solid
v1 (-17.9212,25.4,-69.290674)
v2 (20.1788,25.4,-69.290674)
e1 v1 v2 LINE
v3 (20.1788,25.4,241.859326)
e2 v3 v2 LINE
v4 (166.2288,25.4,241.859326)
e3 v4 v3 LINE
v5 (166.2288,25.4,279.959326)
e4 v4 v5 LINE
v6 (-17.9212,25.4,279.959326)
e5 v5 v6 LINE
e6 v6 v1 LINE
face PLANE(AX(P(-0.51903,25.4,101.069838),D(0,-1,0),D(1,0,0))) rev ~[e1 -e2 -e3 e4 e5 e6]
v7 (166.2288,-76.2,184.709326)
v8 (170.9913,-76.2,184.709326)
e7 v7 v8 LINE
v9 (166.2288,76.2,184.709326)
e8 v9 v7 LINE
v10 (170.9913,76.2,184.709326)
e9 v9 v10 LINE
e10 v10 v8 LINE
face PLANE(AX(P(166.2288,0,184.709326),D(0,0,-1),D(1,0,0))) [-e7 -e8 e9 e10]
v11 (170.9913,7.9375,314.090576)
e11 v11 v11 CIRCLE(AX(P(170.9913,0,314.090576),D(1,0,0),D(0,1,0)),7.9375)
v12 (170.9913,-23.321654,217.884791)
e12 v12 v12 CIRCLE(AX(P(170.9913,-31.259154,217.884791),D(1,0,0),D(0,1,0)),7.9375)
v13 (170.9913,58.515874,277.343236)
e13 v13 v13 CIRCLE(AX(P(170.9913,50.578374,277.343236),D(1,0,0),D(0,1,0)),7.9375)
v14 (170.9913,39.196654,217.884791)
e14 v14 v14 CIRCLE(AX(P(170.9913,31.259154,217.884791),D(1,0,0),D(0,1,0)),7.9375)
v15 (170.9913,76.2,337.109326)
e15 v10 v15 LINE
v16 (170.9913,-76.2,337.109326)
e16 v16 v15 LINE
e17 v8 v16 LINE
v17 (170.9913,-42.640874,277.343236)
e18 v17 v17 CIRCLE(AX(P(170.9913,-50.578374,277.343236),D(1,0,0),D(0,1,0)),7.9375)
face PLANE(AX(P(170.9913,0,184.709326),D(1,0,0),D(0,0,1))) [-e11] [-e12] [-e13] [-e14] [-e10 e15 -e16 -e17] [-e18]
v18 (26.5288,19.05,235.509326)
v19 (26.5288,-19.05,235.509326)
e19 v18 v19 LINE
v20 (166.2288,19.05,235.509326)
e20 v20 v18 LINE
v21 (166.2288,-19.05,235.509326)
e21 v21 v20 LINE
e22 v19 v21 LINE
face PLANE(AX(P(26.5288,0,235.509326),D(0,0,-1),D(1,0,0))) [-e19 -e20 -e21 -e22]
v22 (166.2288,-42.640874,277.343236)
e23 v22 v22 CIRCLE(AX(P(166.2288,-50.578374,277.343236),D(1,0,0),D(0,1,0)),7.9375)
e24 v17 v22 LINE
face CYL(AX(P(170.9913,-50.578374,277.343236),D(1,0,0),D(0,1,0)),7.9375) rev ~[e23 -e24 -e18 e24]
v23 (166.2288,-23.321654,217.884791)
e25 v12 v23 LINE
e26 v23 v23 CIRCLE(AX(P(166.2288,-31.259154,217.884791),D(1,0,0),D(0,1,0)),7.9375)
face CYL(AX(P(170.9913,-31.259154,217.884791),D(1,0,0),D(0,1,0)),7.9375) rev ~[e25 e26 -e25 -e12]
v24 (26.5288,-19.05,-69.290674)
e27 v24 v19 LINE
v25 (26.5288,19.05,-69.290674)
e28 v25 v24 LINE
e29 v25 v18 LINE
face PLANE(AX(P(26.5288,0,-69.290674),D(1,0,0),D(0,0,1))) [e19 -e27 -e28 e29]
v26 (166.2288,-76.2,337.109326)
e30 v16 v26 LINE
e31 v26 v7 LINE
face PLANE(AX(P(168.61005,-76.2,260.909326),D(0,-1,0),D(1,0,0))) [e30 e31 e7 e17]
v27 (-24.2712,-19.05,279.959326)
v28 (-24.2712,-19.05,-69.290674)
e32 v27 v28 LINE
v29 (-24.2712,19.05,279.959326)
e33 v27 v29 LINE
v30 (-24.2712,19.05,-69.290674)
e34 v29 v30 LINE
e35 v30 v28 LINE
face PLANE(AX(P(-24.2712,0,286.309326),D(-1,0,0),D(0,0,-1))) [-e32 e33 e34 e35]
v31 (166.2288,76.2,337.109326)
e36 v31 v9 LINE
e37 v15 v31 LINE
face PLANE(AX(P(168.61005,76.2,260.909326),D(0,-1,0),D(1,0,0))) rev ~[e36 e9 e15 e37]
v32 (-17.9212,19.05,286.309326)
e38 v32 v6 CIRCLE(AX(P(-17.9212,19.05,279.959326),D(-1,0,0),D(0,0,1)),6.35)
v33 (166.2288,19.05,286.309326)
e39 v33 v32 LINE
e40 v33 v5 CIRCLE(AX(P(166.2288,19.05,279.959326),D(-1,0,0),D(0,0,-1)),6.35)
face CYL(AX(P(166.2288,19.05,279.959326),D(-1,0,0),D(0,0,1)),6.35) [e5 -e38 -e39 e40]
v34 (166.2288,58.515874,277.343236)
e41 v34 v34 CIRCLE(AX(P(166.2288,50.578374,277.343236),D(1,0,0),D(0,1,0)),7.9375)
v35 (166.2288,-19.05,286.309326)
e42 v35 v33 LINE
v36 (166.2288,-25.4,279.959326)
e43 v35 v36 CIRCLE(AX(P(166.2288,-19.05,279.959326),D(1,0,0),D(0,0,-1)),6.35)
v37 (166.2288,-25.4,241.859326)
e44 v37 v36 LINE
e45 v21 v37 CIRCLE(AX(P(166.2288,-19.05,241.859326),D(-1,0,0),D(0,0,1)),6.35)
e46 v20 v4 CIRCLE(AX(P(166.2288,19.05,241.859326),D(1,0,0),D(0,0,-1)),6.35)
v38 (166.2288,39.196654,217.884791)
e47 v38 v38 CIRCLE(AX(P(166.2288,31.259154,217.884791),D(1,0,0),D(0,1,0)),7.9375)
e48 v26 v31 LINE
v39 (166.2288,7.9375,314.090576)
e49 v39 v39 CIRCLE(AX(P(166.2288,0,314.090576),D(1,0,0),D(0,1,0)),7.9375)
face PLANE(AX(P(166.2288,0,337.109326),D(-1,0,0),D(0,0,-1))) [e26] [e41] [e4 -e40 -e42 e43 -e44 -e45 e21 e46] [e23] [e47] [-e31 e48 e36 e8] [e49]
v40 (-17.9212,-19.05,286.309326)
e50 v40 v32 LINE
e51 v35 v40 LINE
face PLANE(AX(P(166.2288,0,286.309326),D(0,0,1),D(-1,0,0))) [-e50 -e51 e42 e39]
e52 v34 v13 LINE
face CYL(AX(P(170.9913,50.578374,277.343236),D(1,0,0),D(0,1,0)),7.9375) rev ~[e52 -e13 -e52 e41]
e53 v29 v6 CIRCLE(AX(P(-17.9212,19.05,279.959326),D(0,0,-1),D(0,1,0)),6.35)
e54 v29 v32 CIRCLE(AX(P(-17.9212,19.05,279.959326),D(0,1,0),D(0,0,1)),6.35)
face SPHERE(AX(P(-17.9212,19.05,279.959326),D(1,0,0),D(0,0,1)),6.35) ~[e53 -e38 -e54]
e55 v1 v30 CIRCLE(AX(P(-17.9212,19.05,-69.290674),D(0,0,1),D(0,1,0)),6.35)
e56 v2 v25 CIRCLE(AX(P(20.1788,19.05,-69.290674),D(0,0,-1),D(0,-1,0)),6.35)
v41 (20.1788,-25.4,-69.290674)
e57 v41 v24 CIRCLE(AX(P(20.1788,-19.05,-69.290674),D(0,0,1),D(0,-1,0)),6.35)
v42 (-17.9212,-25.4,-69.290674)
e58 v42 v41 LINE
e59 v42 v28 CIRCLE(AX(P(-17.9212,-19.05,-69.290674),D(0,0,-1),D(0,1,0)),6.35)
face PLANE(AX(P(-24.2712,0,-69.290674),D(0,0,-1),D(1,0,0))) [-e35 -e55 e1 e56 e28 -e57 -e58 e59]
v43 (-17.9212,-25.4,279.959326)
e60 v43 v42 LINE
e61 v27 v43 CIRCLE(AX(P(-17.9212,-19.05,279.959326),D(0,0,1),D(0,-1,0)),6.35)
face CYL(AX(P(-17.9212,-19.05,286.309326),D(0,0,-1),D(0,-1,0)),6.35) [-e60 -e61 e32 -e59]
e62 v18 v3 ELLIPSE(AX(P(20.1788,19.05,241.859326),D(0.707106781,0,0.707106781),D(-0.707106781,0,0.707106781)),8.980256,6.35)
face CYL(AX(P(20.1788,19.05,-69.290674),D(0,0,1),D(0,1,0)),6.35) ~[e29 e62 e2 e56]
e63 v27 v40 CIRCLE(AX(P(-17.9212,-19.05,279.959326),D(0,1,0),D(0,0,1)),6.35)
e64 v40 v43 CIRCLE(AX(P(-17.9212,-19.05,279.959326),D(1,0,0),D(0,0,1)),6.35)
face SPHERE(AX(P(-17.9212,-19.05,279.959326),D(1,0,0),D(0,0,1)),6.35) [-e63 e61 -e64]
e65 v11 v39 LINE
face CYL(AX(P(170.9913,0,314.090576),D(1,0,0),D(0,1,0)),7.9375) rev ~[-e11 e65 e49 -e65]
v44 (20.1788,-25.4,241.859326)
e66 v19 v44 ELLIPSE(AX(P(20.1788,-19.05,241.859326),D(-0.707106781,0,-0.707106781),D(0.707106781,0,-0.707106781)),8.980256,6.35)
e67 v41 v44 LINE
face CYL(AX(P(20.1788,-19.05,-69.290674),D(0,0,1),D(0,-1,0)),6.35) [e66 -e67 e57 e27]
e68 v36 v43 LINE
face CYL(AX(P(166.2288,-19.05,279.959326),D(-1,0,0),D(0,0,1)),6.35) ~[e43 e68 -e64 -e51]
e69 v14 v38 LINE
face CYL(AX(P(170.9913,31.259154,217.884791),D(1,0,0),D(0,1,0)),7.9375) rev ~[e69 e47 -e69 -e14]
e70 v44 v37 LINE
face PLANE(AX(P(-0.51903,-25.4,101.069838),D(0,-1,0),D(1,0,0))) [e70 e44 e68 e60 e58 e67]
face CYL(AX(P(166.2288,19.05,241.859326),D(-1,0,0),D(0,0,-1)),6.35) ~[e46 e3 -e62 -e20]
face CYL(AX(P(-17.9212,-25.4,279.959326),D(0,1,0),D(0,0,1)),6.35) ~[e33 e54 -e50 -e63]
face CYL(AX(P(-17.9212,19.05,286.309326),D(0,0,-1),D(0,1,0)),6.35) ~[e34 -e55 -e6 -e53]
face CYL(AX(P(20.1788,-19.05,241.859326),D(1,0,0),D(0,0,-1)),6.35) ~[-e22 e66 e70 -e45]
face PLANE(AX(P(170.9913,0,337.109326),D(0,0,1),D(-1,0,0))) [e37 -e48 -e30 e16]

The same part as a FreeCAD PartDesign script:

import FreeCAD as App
import Part
import Sketcher
from FreeCAD import Vector
Q = App.Units.Quantity


def edges_at(feature, points):
    """Names of the edges that pass closest to the given points."""
    edges = feature.Shape.Edges
    near = lambda p: min(range(len(edges)), key=lambda i: edges[i].distToShape(Part.Vertex(*p))[0])
    return sorted({f"Edge{near(p) + 1}" for p in points})


def add_polygon(sketch, points):
    """Adds a closed chain of lines whose ends are joined by coincident constraints."""
    first, n = sketch.GeometryCount, len(points)
    for a, b in zip(points, points[1:] + points[:1]):
        sketch.addGeometry(Part.LineSegment(App.Vector(*a, 0), App.Vector(*b, 0)), False)
    for i in range(n):
        sketch.addConstraint(Sketcher.Constraint("Coincident", first + i, 2, first + (i + 1) % n, 1))

doc = App.newDocument("Part")
params = doc.addObject("Spreadsheet::Sheet", "Params")
for row, (alias, value) in enumerate([
    ("sketch1_width", "2 in"),
    ("sketch1_height", "14 in"),
    ("sketch1_width2", "5.5 in"),
    ("pad1_length", "2 in"),
    ("sketch2_height", "6 in"),
    ("sketch2_width", "0.1875 in"),
    ("pad2_length", "6 in"),
    ("sketch3_diameter", "0.625 in"),
    ("pocket1_length", "1 in"),
    ("fillet_radius", "0.25 in"),
    ("fillet2_radius", "0.25 in"),
], start=1):
    params.set(f"A{row}", alias)
    params.set(f"B{row}", "=" + value)
    params.setAlias(f"B{row}", alias)

body = doc.addObject("PartDesign::Body", "Body")

# Sketch on XZ plane
sketch1 = doc.addObject("Sketcher::SketchObject", "Sketch")
body.addObject(sketch1)
sketch1.AttachmentSupport = (doc.XZ_Plane, [""])
sketch1.MapMode = "FlatFace"
add_polygon(sketch1, [(-24.2712, 286.309326), (-24.2712, -69.290674), (26.5288, -69.290674), (26.5288, 235.509326), (166.2288, 235.509326), (166.2288, 286.309326)])  # lines 0-5
sketch1.addConstraint([
    Sketcher.Constraint("Vertical", 0),
    Sketcher.Constraint("Horizontal", 1),
    Sketcher.Constraint("Vertical", 2),
    Sketcher.Constraint("Horizontal", 3),
    Sketcher.Constraint("Vertical", 4),
    Sketcher.Constraint("Horizontal", 5),
    Sketcher.Constraint("Equal", 1, 4),
    Sketcher.Constraint("DistanceX", 1, 1, 1, 2, Q("2 in")),
    Sketcher.Constraint("DistanceY", 0, 2, 0, 1, Q("14 in")),
    Sketcher.Constraint("DistanceX", 3, 1, 3, 2, Q("5.5 in")),
    Sketcher.Constraint("DistanceX", 0, 2, -1, 1, Q("24.2712 mm")),
    Sketcher.Constraint("DistanceY", 0, 2, -1, 1, Q("69.290674 mm")),
])
sketch1.setExpression("Constraints[13]", "Params.sketch1_width")
sketch1.setExpression("Constraints[14]", "Params.sketch1_height")
sketch1.setExpression("Constraints[15]", "Params.sketch1_width2")
pad1 = doc.addObject("PartDesign::Pad", "Pad")
body.addObject(pad1)
pad1.Profile = sketch1
pad1.setExpression("Length", "Params.pad1_length")
pad1.Midplane = True

# Sketch on XZ plane
sketch2 = doc.addObject("Sketcher::SketchObject", "Sketch001")
body.addObject(sketch2)
sketch2.AttachmentSupport = (doc.XZ_Plane, [""])
sketch2.MapMode = "FlatFace"
add_polygon(sketch2, [(166.2288, 337.109326), (166.2288, 184.709326), (170.9913, 184.709326), (170.9913, 337.109326)])  # lines 0-3
sketch2.addConstraint([
    Sketcher.Constraint("Vertical", 0),
    Sketcher.Constraint("Horizontal", 1),
    Sketcher.Constraint("Vertical", 2),
    Sketcher.Constraint("Horizontal", 3),
    Sketcher.Constraint("DistanceY", 0, 2, 0, 1, Q("6 in")),
    Sketcher.Constraint("DistanceX", 1, 1, 1, 2, Q("0.1875 in")),
    Sketcher.Constraint("DistanceX", -1, 1, 0, 2, Q("166.2288 mm")),
    Sketcher.Constraint("DistanceY", -1, 1, 0, 2, Q("184.709326 mm")),
])
sketch2.setExpression("Constraints[8]", "Params.sketch2_height")
sketch2.setExpression("Constraints[9]", "Params.sketch2_width")
pad2 = doc.addObject("PartDesign::Pad", "Pad001")
body.addObject(pad2)
pad2.Profile = sketch2
pad2.setExpression("Length", "Params.pad2_length")
pad2.Midplane = True

# Sketch on YZ plane
sketch3 = doc.addObject("Sketcher::SketchObject", "Sketch002")
body.addObject(sketch3)
sketch3.AttachmentSupport = (doc.YZ_Plane, [""])
sketch3.MapMode = "FlatFace"
sketch3.AttachmentOffset = App.Placement(Vector(0, 0, 170.9913), App.Rotation())
sketch3.addGeometry([
    Part.Circle(Vector(0, 314.090576, 0), Vector(0, 0, 1), 7.9375),  # 0
    Part.Circle(Vector(-50.578374, 277.343236, 0), Vector(0, 0, 1), 7.9375),  # 1
    Part.Circle(Vector(-31.259154, 217.884791, 0), Vector(0, 0, 1), 7.9375),  # 2
    Part.Circle(Vector(31.259154, 217.884791, 0), Vector(0, 0, 1), 7.9375),  # 3
    Part.Circle(Vector(50.578374, 277.343236, 0), Vector(0, 0, 1), 7.9375),  # 4
], False)
sketch3.addConstraint([
    Sketcher.Constraint("Equal", 0, 1),
    Sketcher.Constraint("Equal", 1, 2),
    Sketcher.Constraint("Equal", 2, 3),
    Sketcher.Constraint("Equal", 3, 4),
    Sketcher.Constraint("Symmetric", 2, 3, 3, 3, -2),
    Sketcher.Constraint("Symmetric", 1, 3, 4, 3, -2),
    Sketcher.Constraint("PointOnObject", 0, 3, -2),
    Sketcher.Constraint("Diameter", 0, Q("0.625 in")),
    Sketcher.Constraint("DistanceY", -1, 1, 2, 3, Q("217.884791 mm")),
    Sketcher.Constraint("DistanceY", 1, 3, 0, 3, Q("36.74734 mm")),
    Sketcher.Constraint("DistanceX", 1, 3, 2, 3, Q("19.31922 mm")),
    Sketcher.Constraint("DistanceX", 2, 3, 3, 3, Q("62.518309 mm")),
    Sketcher.Constraint("DistanceY", -1, 1, 0, 3, Q("314.090576 mm")),
])
sketch3.setExpression("Constraints[7]", "Params.sketch3_diameter")
pocket1 = doc.addObject("PartDesign::Pocket", "Pocket")
body.addObject(pocket1)
pocket1.Profile = sketch3
pocket1.setExpression("Length", "Params.pocket1_length")
pocket1.Midplane = True
doc.recompute()

fillet = doc.addObject("PartDesign::Fillet", "Fillet")
body.addObject(fillet)
fillet.Base = (pocket1, edges_at(pocket1, [
    (70.979, -25.4, 286.309),
    (70.979, 25.4, 286.309),
    (-24.271, 0, 286.309),
    (-24.271, -25.4, 108.509),
    (26.529, -25.4, 83.109),
    (26.529, 25.4, 83.109),
    (-24.271, 25.4, 108.509),
]))
fillet.setExpression("Radius", "Params.fillet_radius")
doc.recompute()

fillet2 = doc.addObject("PartDesign::Fillet", "Fillet001")
body.addObject(fillet2)
fillet2.Base = (fillet, edges_at(fillet, [(93.204, -25.4, 235.509), (93.204, 25.4, 235.509)]))
fillet2.setExpression("Radius", "Params.fillet2_radius")

doc.recompute()
